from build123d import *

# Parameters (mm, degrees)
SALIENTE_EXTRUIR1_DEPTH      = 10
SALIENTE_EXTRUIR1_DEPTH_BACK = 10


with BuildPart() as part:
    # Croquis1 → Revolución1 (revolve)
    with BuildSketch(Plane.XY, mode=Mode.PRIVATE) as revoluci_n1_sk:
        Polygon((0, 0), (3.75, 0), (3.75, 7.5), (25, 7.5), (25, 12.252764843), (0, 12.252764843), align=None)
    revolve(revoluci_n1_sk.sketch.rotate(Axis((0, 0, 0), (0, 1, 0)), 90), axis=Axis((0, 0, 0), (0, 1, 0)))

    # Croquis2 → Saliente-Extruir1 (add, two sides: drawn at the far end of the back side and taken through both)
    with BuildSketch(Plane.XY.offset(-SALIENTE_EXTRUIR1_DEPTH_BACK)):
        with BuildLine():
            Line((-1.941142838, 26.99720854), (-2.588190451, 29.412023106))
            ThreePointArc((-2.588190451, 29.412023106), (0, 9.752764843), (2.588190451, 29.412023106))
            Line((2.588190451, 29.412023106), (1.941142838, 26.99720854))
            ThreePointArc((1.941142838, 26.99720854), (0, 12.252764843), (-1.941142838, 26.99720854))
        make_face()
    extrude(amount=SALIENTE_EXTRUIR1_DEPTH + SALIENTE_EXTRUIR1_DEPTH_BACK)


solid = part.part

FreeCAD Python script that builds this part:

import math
import FreeCAD as App
import Part
import Sketcher
Q = App.Units.Quantity

doc = App.newDocument("Part")
params = doc.addObject("Spreadsheet::Sheet", "Params")
for row, (alias, value) in enumerate([
    ("sketch1_width", "25 mm"),
    ("sketch1_height", "7.5 mm"),
    ("sketch1_width2", "3.75 mm"),
    ("revolution_angle", "360 deg"),
    ("sketch2_radius", "10 mm"),
    ("sketch2_radius2", "7.5 mm"),
    ("pad1_length", "10 mm"),
    ("pad1_length2", "10 mm"),
], start=1):
    params.set(f"A{row}", alias)
    params.set(f"B{row}", "=" + value)
    params.setAlias(f"B{row}", alias)

body = doc.addObject("PartDesign::Body", "Body")

# Sketch on XY plane
sketch1 = body.newObject("Sketcher::SketchObject", "Sketch")
sketch1.AttachmentSupport = (doc.getObject("XY_Plane"), [""])
sketch1.MapMode = "FlatFace"
sketch1.addGeometry(Part.LineSegment(App.Vector(0, 0, 0), App.Vector(3.8, 0, 0)), False)
sketch1.addGeometry(Part.LineSegment(App.Vector(3.8, 0, 0), App.Vector(3.8, 7.5, 0)), False)
sketch1.addGeometry(Part.LineSegment(App.Vector(3.8, 7.5, 0), App.Vector(25, 7.5, 0)), False)
sketch1.addGeometry(Part.LineSegment(App.Vector(25, 7.5, 0), App.Vector(25, 12.3, 0)), False)
sketch1.addGeometry(Part.LineSegment(App.Vector(25, 12.3, 0), App.Vector(0, 12.3, 0)), False)
sketch1.addGeometry(Part.LineSegment(App.Vector(0, 12.3, 0), App.Vector(0, 0, 0)), False)
sketch1.addConstraint(Sketcher.Constraint("Coincident", 0, 2, 1, 1))
sketch1.addConstraint(Sketcher.Constraint("Coincident", 1, 2, 2, 1))
sketch1.addConstraint(Sketcher.Constraint("Coincident", 2, 2, 3, 1))
sketch1.addConstraint(Sketcher.Constraint("Coincident", 3, 2, 4, 1))
sketch1.addConstraint(Sketcher.Constraint("Coincident", 4, 2, 5, 1))
sketch1.addConstraint(Sketcher.Constraint("Coincident", 5, 2, 0, 1))
sketch1.addConstraint(Sketcher.Constraint("Horizontal", 0))
sketch1.addConstraint(Sketcher.Constraint("Vertical", 1))
sketch1.addConstraint(Sketcher.Constraint("Horizontal", 2))
sketch1.addConstraint(Sketcher.Constraint("Vertical", 3))
sketch1.addConstraint(Sketcher.Constraint("Horizontal", 4))
sketch1.addConstraint(Sketcher.Constraint("Vertical", 5))
sketch1.addConstraint(Sketcher.Constraint("Coincident", 5, 2, -1, 1))
sketch1.addConstraint(Sketcher.Constraint("DistanceX", 4, 2, 4, 1, 25.0))
sketch1.addConstraint(Sketcher.Constraint("DistanceY", 1, 1, 1, 2, 7.5))
sketch1.addConstraint(Sketcher.Constraint("DistanceX", 0, 1, 0, 2, 3.75))
sketch1.addConstraint(Sketcher.Constraint("DistanceY", 3, 1, 3, 2, 4.752765))
sketch1.setExpression("Constraints[13]", "Params.sketch1_width")
sketch1.setExpression("Constraints[14]", "Params.sketch1_height")
sketch1.setExpression("Constraints[15]", "Params.sketch1_width2")
revolution = body.newObject("PartDesign::Revolution", "Revolution")
revolution.Profile = sketch1
revolution.ReferenceAxis = (sketch1, ["V_Axis"])
revolution.setExpression("Angle", "Params.revolution_angle")

# Sketch on XY plane
sketch2 = body.newObject("Sketcher::SketchObject", "Sketch001")
sketch2.AttachmentSupport = (doc.getObject("XY_Plane"), [""])
sketch2.MapMode = "FlatFace"
sketch2.addGeometry(Part.LineSegment(App.Vector(-1.9, 27, 0), App.Vector(-2.6, 29.4, 0)), False)
sketch2.addGeometry(Part.ArcOfCircle(Part.Circle(App.Vector(0, 19.8, 0), App.Vector(0, 0, 1), 10), math.radians(105), math.radians(435)), False)
sketch2.addGeometry(Part.LineSegment(App.Vector(2.6, 29.4, 0), App.Vector(1.9, 27, 0)), False)
sketch2.addGeometry(Part.ArcOfCircle(Part.Circle(App.Vector(0, 19.8, 0), App.Vector(0, 0, 1), 7.5), math.radians(105), math.radians(435)), False)
sketch2.addConstraint(Sketcher.Constraint("Coincident", 0, 2, 1, 1))
sketch2.addConstraint(Sketcher.Constraint("Coincident", 1, 2, 2, 1))
sketch2.addConstraint(Sketcher.Constraint("Coincident", 2, 2, 3, 2))
sketch2.addConstraint(Sketcher.Constraint("Coincident", 3, 1, 0, 1))
sketch2.addConstraint(Sketcher.Constraint("Coincident", 3, 3, 1, 3))
sketch2.addConstraint(Sketcher.Constraint("Symmetric", 0, 2, 1, 2, -2))
sketch2.addConstraint(Sketcher.Constraint("Horizontal", 2, 2, 3, 1))
sketch2.addConstraint(Sketcher.Constraint("Radius", 1, 10.0))
sketch2.addConstraint(Sketcher.Constraint("Radius", 3, 7.5))
sketch2.addConstraint(Sketcher.Constraint("Angle", 0, Q("105 deg")))
sketch2.addConstraint(Sketcher.Constraint("DistanceX", 0, 2, -1, 1, 2.58819))
sketch2.addConstraint(Sketcher.Constraint("DistanceY", -1, 1, 2, 2, 26.997209))
sketch2.setExpression("Constraints[7]", "Params.sketch2_radius")
sketch2.setExpression("Constraints[8]", "Params.sketch2_radius2")
pad1 = body.newObject("PartDesign::Pad", "Pad")
pad1.Profile = sketch2
pad1.Type = "TwoLengths"
pad1.setExpression("Length", "Params.pad1_length")
pad1.setExpression("Length2", "Params.pad1_length2")

doc.recompute()
